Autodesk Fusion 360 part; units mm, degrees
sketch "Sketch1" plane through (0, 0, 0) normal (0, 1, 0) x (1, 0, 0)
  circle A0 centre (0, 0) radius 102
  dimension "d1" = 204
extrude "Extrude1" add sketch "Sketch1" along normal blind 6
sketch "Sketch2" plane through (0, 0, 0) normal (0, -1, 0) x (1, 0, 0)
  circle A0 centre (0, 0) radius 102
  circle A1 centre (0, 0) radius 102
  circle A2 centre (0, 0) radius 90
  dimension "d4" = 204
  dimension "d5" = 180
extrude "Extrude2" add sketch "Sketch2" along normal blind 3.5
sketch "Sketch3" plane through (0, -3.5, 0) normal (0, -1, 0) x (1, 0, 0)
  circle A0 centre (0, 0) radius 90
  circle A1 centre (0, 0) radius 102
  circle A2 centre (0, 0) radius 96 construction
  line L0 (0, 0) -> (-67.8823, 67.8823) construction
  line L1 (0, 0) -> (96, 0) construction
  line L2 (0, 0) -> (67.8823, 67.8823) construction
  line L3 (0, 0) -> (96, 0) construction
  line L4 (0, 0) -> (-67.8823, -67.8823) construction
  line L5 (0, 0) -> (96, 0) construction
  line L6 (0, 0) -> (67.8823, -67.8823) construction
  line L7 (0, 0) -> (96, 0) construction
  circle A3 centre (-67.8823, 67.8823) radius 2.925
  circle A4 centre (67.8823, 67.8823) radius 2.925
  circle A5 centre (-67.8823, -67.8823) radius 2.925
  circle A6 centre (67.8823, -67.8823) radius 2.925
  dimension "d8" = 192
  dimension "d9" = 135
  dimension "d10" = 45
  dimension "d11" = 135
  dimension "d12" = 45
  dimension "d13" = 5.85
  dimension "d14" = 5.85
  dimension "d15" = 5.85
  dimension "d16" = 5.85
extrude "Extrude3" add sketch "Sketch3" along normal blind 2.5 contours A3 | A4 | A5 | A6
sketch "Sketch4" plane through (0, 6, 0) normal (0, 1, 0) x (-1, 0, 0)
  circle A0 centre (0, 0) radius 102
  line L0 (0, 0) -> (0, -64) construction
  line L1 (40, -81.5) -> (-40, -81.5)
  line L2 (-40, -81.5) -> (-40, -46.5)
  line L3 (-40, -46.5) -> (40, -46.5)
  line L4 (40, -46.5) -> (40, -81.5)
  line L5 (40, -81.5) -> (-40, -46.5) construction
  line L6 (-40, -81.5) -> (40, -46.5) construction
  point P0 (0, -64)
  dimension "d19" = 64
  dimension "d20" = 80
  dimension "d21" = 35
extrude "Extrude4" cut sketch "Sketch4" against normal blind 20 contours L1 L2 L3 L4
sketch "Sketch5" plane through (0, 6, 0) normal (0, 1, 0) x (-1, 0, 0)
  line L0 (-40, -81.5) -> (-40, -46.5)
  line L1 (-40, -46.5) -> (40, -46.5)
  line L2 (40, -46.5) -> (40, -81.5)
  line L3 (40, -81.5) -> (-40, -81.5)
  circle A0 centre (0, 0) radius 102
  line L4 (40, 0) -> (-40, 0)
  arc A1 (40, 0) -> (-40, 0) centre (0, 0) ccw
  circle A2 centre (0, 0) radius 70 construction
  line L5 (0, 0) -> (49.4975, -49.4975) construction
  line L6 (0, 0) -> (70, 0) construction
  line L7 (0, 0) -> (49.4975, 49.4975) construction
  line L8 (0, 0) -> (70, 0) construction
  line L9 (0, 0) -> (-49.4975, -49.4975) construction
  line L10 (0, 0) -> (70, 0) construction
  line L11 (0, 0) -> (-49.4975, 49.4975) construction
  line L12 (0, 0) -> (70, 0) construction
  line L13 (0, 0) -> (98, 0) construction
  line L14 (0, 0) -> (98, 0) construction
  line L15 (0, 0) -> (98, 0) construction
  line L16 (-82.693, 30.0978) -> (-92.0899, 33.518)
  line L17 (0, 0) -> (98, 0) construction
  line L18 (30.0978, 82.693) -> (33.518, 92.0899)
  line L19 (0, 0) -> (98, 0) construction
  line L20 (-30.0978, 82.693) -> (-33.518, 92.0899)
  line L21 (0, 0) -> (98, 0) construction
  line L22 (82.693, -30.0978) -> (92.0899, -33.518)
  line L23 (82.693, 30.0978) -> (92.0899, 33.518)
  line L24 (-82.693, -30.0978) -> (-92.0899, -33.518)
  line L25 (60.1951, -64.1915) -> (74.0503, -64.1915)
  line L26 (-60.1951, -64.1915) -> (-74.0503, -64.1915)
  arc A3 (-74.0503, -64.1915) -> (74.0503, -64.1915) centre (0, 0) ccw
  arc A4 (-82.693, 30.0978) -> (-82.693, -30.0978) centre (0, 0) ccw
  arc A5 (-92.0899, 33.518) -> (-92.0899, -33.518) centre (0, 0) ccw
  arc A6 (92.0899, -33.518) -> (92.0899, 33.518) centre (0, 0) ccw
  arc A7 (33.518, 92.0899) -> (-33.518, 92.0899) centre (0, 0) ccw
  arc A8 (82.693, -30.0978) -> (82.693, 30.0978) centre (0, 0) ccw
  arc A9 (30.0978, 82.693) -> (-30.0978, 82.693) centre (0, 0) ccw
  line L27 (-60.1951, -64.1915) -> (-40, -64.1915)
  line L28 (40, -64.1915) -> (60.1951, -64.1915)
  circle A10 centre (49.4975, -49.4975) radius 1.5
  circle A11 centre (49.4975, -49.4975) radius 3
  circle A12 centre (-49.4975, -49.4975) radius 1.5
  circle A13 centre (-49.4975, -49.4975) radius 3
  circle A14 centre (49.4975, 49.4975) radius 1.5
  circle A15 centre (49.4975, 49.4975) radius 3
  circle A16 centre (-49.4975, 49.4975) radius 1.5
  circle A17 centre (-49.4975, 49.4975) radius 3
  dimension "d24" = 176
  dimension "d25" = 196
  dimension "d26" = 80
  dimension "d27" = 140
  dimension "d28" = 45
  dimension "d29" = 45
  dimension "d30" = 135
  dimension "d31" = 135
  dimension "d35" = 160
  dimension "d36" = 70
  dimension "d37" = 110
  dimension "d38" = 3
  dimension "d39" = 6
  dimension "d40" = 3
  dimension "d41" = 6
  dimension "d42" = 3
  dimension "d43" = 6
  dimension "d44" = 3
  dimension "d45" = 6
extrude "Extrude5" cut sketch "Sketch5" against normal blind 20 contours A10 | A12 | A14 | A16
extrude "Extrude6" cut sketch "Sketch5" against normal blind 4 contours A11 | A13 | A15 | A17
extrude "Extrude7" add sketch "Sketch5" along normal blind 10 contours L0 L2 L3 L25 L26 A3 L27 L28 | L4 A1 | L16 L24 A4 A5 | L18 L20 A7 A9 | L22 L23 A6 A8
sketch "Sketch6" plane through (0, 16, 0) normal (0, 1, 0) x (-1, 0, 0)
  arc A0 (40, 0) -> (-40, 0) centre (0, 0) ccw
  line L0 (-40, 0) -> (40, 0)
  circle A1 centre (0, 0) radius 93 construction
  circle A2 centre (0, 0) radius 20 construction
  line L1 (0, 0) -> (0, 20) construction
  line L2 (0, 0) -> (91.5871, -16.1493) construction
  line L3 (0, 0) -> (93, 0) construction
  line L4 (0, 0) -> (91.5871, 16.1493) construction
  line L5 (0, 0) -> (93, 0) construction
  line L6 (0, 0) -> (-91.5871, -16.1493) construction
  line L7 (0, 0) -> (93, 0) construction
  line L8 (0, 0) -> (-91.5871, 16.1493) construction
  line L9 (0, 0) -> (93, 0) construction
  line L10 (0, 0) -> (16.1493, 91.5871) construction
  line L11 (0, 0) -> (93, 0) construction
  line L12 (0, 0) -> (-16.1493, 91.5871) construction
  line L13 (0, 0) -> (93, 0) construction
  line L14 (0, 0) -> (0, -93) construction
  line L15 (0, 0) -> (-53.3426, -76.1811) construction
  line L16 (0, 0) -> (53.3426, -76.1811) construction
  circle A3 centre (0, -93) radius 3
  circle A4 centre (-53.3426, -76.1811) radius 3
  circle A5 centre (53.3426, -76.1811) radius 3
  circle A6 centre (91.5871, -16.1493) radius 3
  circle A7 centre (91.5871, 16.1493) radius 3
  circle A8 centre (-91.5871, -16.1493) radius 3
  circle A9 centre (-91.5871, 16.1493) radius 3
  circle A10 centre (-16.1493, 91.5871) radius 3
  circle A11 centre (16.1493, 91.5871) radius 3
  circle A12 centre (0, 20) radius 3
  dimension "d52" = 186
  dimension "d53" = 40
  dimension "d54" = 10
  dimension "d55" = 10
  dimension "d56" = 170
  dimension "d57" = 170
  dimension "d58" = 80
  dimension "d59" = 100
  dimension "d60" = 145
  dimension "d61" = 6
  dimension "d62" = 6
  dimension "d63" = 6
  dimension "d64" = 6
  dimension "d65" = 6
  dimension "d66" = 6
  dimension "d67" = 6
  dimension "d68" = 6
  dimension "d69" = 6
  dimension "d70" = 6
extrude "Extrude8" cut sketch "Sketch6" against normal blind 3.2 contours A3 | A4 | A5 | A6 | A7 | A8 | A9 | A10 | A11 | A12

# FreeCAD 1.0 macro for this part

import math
import FreeCAD as App
import Part
import Sketcher

V = App.Vector
Q = App.Units.Quantity

doc = App.newDocument("Part")
body = doc.addObject("PartDesign::Body", "Body")

# Sketch on XZ plane
sketch1 = body.newObject("Sketcher::SketchObject", "Sketch")
sketch1.AttachmentSupport = (doc.getObject("XZ_Plane"), [""])
sketch1.MapMode = "FlatFace"
sketch1.addGeometry(Part.Circle(V(0, 0, 0), V(0, 0, 1), 102), False)
sketch1.addConstraint(Sketcher.Constraint("Coincident", 0, 3, -1, 1))
sketch1.addConstraint(Sketcher.Constraint("Diameter", 0, 204.0))
pad1 = body.newObject("PartDesign::Pad", "Pad")
pad1.Profile = sketch1
pad1.Length = 6
pad1.Reversed = True

# Sketch on XZ plane
sketch2 = body.newObject("Sketcher::SketchObject", "Sketch001")
sketch2.AttachmentSupport = (doc.getObject("XZ_Plane"), [""])
sketch2.MapMode = "FlatFace"
sketch2.addGeometry(Part.Circle(V(0, 0, 0), V(0, 0, 1), 102), False)
sketch2.addGeometry(Part.Circle(V(0, 0, 0), V(0, 0, 1), 90), False)
sketch2.addConstraint(Sketcher.Constraint("Coincident", 0, 3, -1, 1))
sketch2.addConstraint(Sketcher.Constraint("Coincident", 1, 3, -1, 1))
sketch2.addConstraint(Sketcher.Constraint("Diameter", 0, 204.0))
sketch2.addConstraint(Sketcher.Constraint("Diameter", 1, 180.0))
pad2 = body.newObject("PartDesign::Pad", "Pad001")
pad2.Profile = sketch2
pad2.Length = 3.5

# Sketch on XZ plane
sketch3 = body.newObject("Sketcher::SketchObject", "Sketch002")
sketch3.AttachmentSupport = (doc.getObject("XZ_Plane"), [""])
sketch3.MapMode = "FlatFace"
sketch3.AttachmentOffset = App.Placement(V(0, 0, 3.5), App.Rotation())
sketch3.addGeometry(Part.Circle(V(-67.9, 67.9, 0), V(0, 0, 1), 2.9), False)
sketch3.addGeometry(Part.Circle(V(67.9, 67.9, 0), V(0, 0, 1), 2.9), False)
sketch3.addGeometry(Part.Circle(V(-67.9, -67.9, 0), V(0, 0, 1), 2.9), False)
sketch3.addGeometry(Part.Circle(V(67.9, -67.9, 0), V(0, 0, 1), 2.9), False)
sketch3.addConstraint(Sketcher.Constraint("Equal", 0, 1))
sketch3.addConstraint(Sketcher.Constraint("Equal", 1, 2))
sketch3.addConstraint(Sketcher.Constraint("Equal", 2, 3))
sketch3.addConstraint(Sketcher.Constraint("Symmetric", 1, 3, 2, 3, -1, 1))
sketch3.addConstraint(Sketcher.Constraint("Symmetric", 0, 3, 3, 3, -1, 1))
sketch3.addConstraint(Sketcher.Constraint("Symmetric", 0, 3, 1, 3, -2))
sketch3.addConstraint(Sketcher.Constraint("Diameter", 0, 5.85))
sketch3.addConstraint(Sketcher.Constraint("DistanceX", 0, 3, -1, 1, 67.8823))
sketch3.addConstraint(Sketcher.Constraint("DistanceY", -1, 1, 0, 3, 67.8823))
pad3 = body.newObject("PartDesign::Pad", "Pad002")
pad3.Profile = sketch3
pad3.Length = 2.5

# Sketch on XZ plane
sketch4 = body.newObject("Sketcher::SketchObject", "Sketch003")
sketch4.AttachmentSupport = (doc.getObject("XZ_Plane"), [""])
sketch4.MapMode = "FlatFace"
sketch4.AttachmentOffset = App.Placement(V(0, 0, -6), App.Rotation())
sketch4.addGeometry(Part.LineSegment(V(40, -82, 0), V(-40, -82, 0)), False)
sketch4.addGeometry(Part.LineSegment(V(-40, -82, 0), V(-40, -46, 0)), False)
sketch4.addGeometry(Part.LineSegment(V(-40, -46, 0), V(40, -46, 0)), False)
sketch4.addGeometry(Part.LineSegment(V(40, -46, 0), V(40, -82, 0)), False)
sketch4.addConstraint(Sketcher.Constraint("Coincident", 0, 2, 1, 1))
sketch4.addConstraint(Sketcher.Constraint("Coincident", 1, 2, 2, 1))
sketch4.addConstraint(Sketcher.Constraint("Coincident", 2, 2, 3, 1))
sketch4.addConstraint(Sketcher.Constraint("Coincident", 3, 2, 0, 1))
sketch4.addConstraint(Sketcher.Constraint("Horizontal", 0))
sketch4.addConstraint(Sketcher.Constraint("Vertical", 1))
sketch4.addConstraint(Sketcher.Constraint("Horizontal", 2))
sketch4.addConstraint(Sketcher.Constraint("Vertical", 3))
sketch4.addConstraint(Sketcher.Constraint("DistanceX", 0, 2, 0, 1, 80.0))
sketch4.addConstraint(Sketcher.Constraint("DistanceY", 1, 1, 1, 2, 35.0))
sketch4.addConstraint(Sketcher.Constraint("DistanceX", 0, 2, -1, 1, 40.0))
sketch4.addConstraint(Sketcher.Constraint("DistanceY", 0, 2, -1, 1, 81.5))
pocket1 = body.newObject("PartDesign::Pocket", "Pocket")
pocket1.Profile = sketch4
pocket1.Length = 20
pocket1.Reversed = True

# Sketch on XZ plane
sketch5 = body.newObject("Sketcher::SketchObject", "Sketch004")
sketch5.AttachmentSupport = (doc.getObject("XZ_Plane"), [""])
sketch5.MapMode = "FlatFace"
sketch5.AttachmentOffset = App.Placement(V(0, 0, -6), App.Rotation())
sketch5.addGeometry(Part.Circle(V(-49.5, -49.5, 0), V(0, 0, 1), 1.5), False)
sketch5.addGeometry(Part.Circle(V(49.5, -49.5, 0), V(0, 0, 1), 1.5), False)
sketch5.addGeometry(Part.Circle(V(-49.5, 49.5, 0), V(0, 0, 1), 1.5), False)
sketch5.addGeometry(Part.Circle(V(49.5, 49.5, 0), V(0, 0, 1), 1.5), False)
sketch5.addConstraint(Sketcher.Constraint("Equal", 0, 1))
sketch5.addConstraint(Sketcher.Constraint("Equal", 1, 2))
sketch5.addConstraint(Sketcher.Constraint("Equal", 2, 3))
sketch5.addConstraint(Sketcher.Constraint("Symmetric", 1, 3, 2, 3, -1, 1))
sketch5.addConstraint(Sketcher.Constraint("Symmetric", 0, 3, 3, 3, -1, 1))
sketch5.addConstraint(Sketcher.Constraint("Symmetric", 0, 3, 1, 3, -2))
sketch5.addConstraint(Sketcher.Constraint("Diameter", 0, 3.0))
sketch5.addConstraint(Sketcher.Constraint("DistanceX", 0, 3, 1, 3, 98.995))
sketch5.addConstraint(Sketcher.Constraint("DistanceY", 0, 3, 2, 3, 98.995))
pocket2 = body.newObject("PartDesign::Pocket", "Pocket001")
pocket2.Profile = sketch5
pocket2.Length = 20
pocket2.Reversed = True

# Sketch on XZ plane
sketch6 = body.newObject("Sketcher::SketchObject", "Sketch005")
sketch6.AttachmentSupport = (doc.getObject("XZ_Plane"), [""])
sketch6.MapMode = "FlatFace"
sketch6.AttachmentOffset = App.Placement(V(0, 0, -6), App.Rotation())
sketch6.addGeometry(Part.Circle(V(-49.5, -49.5, 0), V(0, 0, 1), 3), False)
sketch6.addGeometry(Part.Circle(V(-49.5, -49.5, 0), V(0, 0, 1), 1.5), False)
sketch6.addGeometry(Part.Circle(V(49.5, -49.5, 0), V(0, 0, 1), 3), False)
sketch6.addGeometry(Part.Circle(V(49.5, -49.5, 0), V(0, 0, 1), 1.5), False)
sketch6.addGeometry(Part.Circle(V(-49.5, 49.5, 0), V(0, 0, 1), 3), False)
sketch6.addGeometry(Part.Circle(V(-49.5, 49.5, 0), V(0, 0, 1), 1.5), False)
sketch6.addGeometry(Part.Circle(V(49.5, 49.5, 0), V(0, 0, 1), 3), False)
sketch6.addGeometry(Part.Circle(V(49.5, 49.5, 0), V(0, 0, 1), 1.5), False)
sketch6.addConstraint(Sketcher.Constraint("Coincident", 1, 3, 0, 3))
sketch6.addConstraint(Sketcher.Constraint("Coincident", 3, 3, 2, 3))
sketch6.addConstraint(Sketcher.Constraint("Coincident", 5, 3, 4, 3))
sketch6.addConstraint(Sketcher.Constraint("Coincident", 7, 3, 6, 3))
sketch6.addConstraint(Sketcher.Constraint("Equal", 0, 2))
sketch6.addConstraint(Sketcher.Constraint("Equal", 1, 3))
sketch6.addConstraint(Sketcher.Constraint("Equal", 2, 4))
sketch6.addConstraint(Sketcher.Constraint("Equal", 3, 5))
sketch6.addConstraint(Sketcher.Constraint("Equal", 4, 6))
sketch6.addConstraint(Sketcher.Constraint("Equal", 5, 7))
sketch6.addConstraint(Sketcher.Constraint("Symmetric", 2, 3, 4, 3, -1, 1))
sketch6.addConstraint(Sketcher.Constraint("Symmetric", 0, 3, 6, 3, -1, 1))
sketch6.addConstraint(Sketcher.Constraint("Symmetric", 0, 3, 2, 3, -2))
sketch6.addConstraint(Sketcher.Constraint("Diameter", 0, 6.0))
sketch6.addConstraint(Sketcher.Constraint("Diameter", 1, 3.0))
sketch6.addConstraint(Sketcher.Constraint("DistanceX", 0, 3, 2, 3, 98.995))
sketch6.addConstraint(Sketcher.Constraint("DistanceY", 0, 3, 4, 3, 98.995))
pocket3 = body.newObject("PartDesign::Pocket", "Pocket002")
pocket3.Profile = sketch6
pocket3.Length = 4
pocket3.Reversed = True

# Sketch on XZ plane
sketch7 = body.newObject("Sketcher::SketchObject", "Sketch006")
sketch7.AttachmentSupport = (doc.getObject("XZ_Plane"), [""])
sketch7.MapMode = "FlatFace"
sketch7.AttachmentOffset = App.Placement(V(0, 0, -6), App.Rotation())
sketch7.addGeometry(Part.LineSegment(V(-40, -82, 0), V(40, -82, 0)), False)
sketch7.addGeometry(Part.LineSegment(V(40, -82, 0), V(40, -64, 0)), False)
sketch7.addGeometry(Part.LineSegment(V(40, -64, 0), V(74, -64, 0)), False)
sketch7.addGeometry(Part.ArcOfCircle(Part.Circle(V(0, 0, 0), V(0, 0, 1), 98), math.radians(-139), math.radians(-41)), False)
sketch7.addGeometry(Part.LineSegment(V(-74, -64, 0), V(-40, -64, 0)), False)
sketch7.addGeometry(Part.LineSegment(V(-40, -64, 0), V(-40, -82, 0)), False)
sketch7.addGeometry(Part.LineSegment(V(40, 0, 0), V(-40, 0, 0)), False)
sketch7.addGeometry(Part.ArcOfCircle(Part.Circle(V(0, 0, 0), V(0, 0, 1), 40), math.radians(0), math.radians(180)), False)
sketch7.addGeometry(Part.ArcOfCircle(Part.Circle(V(0, 0, 0), V(0, 0, 1), 88), math.radians(-20), math.radians(20)), False)
sketch7.addGeometry(Part.LineSegment(V(83, 30, 0), V(92, 34, 0)), False)
sketch7.addGeometry(Part.ArcOfCircle(Part.Circle(V(0, 0, 0), V(0, 0, 1), 98), math.radians(-20), math.radians(20)), False)
sketch7.addGeometry(Part.LineSegment(V(92, -34, 0), V(83, -30, 0)), False)
sketch7.addGeometry(Part.ArcOfCircle(Part.Circle(V(0, 0, 0), V(0, 0, 1), 88), math.radians(70), math.radians(110)), False)
sketch7.addGeometry(Part.LineSegment(V(-30, 83, 0), V(-34, 92, 0)), False)
sketch7.addGeometry(Part.ArcOfCircle(Part.Circle(V(0, 0, 0), V(0, 0, 1), 98), math.radians(70), math.radians(110)), False)
sketch7.addGeometry(Part.LineSegment(V(34, 92, 0), V(30, 83, 0)), False)
sketch7.addGeometry(Part.ArcOfCircle(Part.Circle(V(0, 0, 0), V(0, 0, 1), 88), math.radians(160), math.radians(200)), False)
sketch7.addGeometry(Part.LineSegment(V(-83, -30, 0), V(-92, -34, 0)), False)
sketch7.addGeometry(Part.ArcOfCircle(Part.Circle(V(0, 0, 0), V(0, 0, 1), 98), math.radians(160), math.radians(200)), False)
sketch7.addGeometry(Part.LineSegment(V(-92, 34, 0), V(-83, 30, 0)), False)
sketch7.addConstraint(Sketcher.Constraint("Coincident", 0, 2, 1, 1))
sketch7.addConstraint(Sketcher.Constraint("Coincident", 1, 2, 2, 1))
sketch7.addConstraint(Sketcher.Constraint("Coincident", 2, 2, 3, 2))
sketch7.addConstraint(Sketcher.Constraint("Coincident", 3, 1, 4, 1))
sketch7.addConstraint(Sketcher.Constraint("Coincident", 4, 2, 5, 1))
sketch7.addConstraint(Sketcher.Constraint("Coincident", 5, 2, 0, 1))
sketch7.addConstraint(Sketcher.Constraint("Coincident", 6, 1, 7, 1))
sketch7.addConstraint(Sketcher.Constraint("Coincident", 7, 2, 6, 2))
sketch7.addConstraint(Sketcher.Constraint("Coincident", 8, 2, 9, 1))
sketch7.addConstraint(Sketcher.Constraint("Coincident", 9, 2, 10, 2))
sketch7.addConstraint(Sketcher.Constraint("Coincident", 10, 1, 11, 1))
sketch7.addConstraint(Sketcher.Constraint("Coincident", 11, 2, 8, 1))
sketch7.addConstraint(Sketcher.Constraint("Coincident", 12, 2, 13, 1))
sketch7.addConstraint(Sketcher.Constraint("Coincident", 13, 2, 14, 2))
sketch7.addConstraint(Sketcher.Constraint("Coincident", 14, 1, 15, 1))
sketch7.addConstraint(Sketcher.Constraint("Coincident", 15, 2, 12, 1))
sketch7.addConstraint(Sketcher.Constraint("Coincident", 16, 2, 17, 1))
sketch7.addConstraint(Sketcher.Constraint("Coincident", 17, 2, 18, 2))
sketch7.addConstraint(Sketcher.Constraint("Coincident", 18, 1, 19, 1))
sketch7.addConstraint(Sketcher.Constraint("Coincident", 19, 2, 16, 1))
sketch7.addConstraint(Sketcher.Constraint("Horizontal", 0))
sketch7.addConstraint(Sketcher.Constraint("Vertical", 1))
sketch7.addConstraint(Sketcher.Constraint("Horizontal", 2))
sketch7.addConstraint(Sketcher.Constraint("Horizontal", 4))
sketch7.addConstraint(Sketcher.Constraint("Vertical", 5))
sketch7.addConstraint(Sketcher.Constraint("Horizontal", 6))
sketch7.addConstraint(Sketcher.Constraint("Coincident", 3, 3, -1, 1))
sketch7.addConstraint(Sketcher.Constraint("Coincident", 7, 3, -1, 1))
sketch7.addConstraint(Sketcher.Constraint("Coincident", 8, 3, -1, 1))
sketch7.addConstraint(Sketcher.Constraint("Coincident", 10, 3, -1, 1))
sketch7.addConstraint(Sketcher.Constraint("Coincident", 12, 3, -1, 1))
sketch7.addConstraint(Sketcher.Constraint("Coincident", 14, 3, -1, 1))
sketch7.addConstraint(Sketcher.Constraint("Coincident", 16, 3, -1, 1))
sketch7.addConstraint(Sketcher.Constraint("Coincident", 18, 3, -1, 1))
sketch7.addConstraint(Sketcher.Constraint("Equal", 3, 10))
sketch7.addConstraint(Sketcher.Constraint("Equal", 8, 12))
sketch7.addConstraint(Sketcher.Constraint("Equal", 10, 14))
sketch7.addConstraint(Sketcher.Constraint("Equal", 12, 16))
sketch7.addConstraint(Sketcher.Constraint("Equal", 14, 18))
sketch7.addConstraint(Sketcher.Constraint("Symmetric", 1, 2, 4, 2, -2))
sketch7.addConstraint(Sketcher.Constraint("PointOnObject", 6, 1, -1))
sketch7.addConstraint(Sketcher.Constraint("Perpendicular", 9, 13))
sketch7.addConstraint(Sketcher.Constraint("Perpendicular", 11, 15))
sketch7.addConstraint(Sketcher.Constraint("Perpendicular", 13, 17))
sketch7.addConstraint(Sketcher.Constraint("Perpendicular", 15, 19))
sketch7.addConstraint(Sketcher.Constraint("Horizontal", 13, 2, 14, 1))
sketch7.addConstraint(Sketcher.Constraint("Horizontal", 12, 2, 15, 2))
sketch7.addConstraint(Sketcher.Constraint("Horizontal", 11, 2, 16, 2))
sketch7.addConstraint(Sketcher.Constraint("Horizontal", 9, 2, 18, 1))
sketch7.addConstraint(Sketcher.Constraint("Vertical", 1, 2, 6, 1))
sketch7.addConstraint(Sketcher.Constraint("Vertical", 9, 2, 10, 1))
sketch7.addConstraint(Sketcher.Constraint("Radius", 3, 98.0))
sketch7.addConstraint(Sketcher.Constraint("Radius", 7, 40.0))
sketch7.addConstraint(Sketcher.Constraint("Radius", 8, 88.0))
sketch7.addConstraint(Sketcher.Constraint("Angle", 11, Q("160 deg")))
sketch7.addConstraint(Sketcher.Constraint("DistanceY", 0, 2, -1, 1, 81.5))
sketch7.addConstraint(Sketcher.Constraint("DistanceX", -1, 1, 9, 2, 92.09))
sketch7.addConstraint(Sketcher.Constraint("DistanceY", -1, 1, 13, 2, 92.09))
sketch7.addConstraint(Sketcher.Constraint("DistanceX", 2, 1, 2, 2, 34.0503))
pad4 = body.newObject("PartDesign::Pad", "Pad003")
pad4.Profile = sketch7
pad4.Length = 10
pad4.Reversed = True

# Sketch on XZ plane
sketch8 = body.newObject("Sketcher::SketchObject", "Sketch007")
sketch8.AttachmentSupport = (doc.getObject("XZ_Plane"), [""])
sketch8.MapMode = "FlatFace"
sketch8.AttachmentOffset = App.Placement(V(0, 0, -16), App.Rotation())
sketch8.addGeometry(Part.Circle(V(0, -93, 0), V(0, 0, 1), 3), False)
sketch8.addGeometry(Part.Circle(V(53.3, -76.2, 0), V(0, 0, 1), 3), False)
sketch8.addGeometry(Part.Circle(V(-53.3, -76.2, 0), V(0, 0, 1), 3), False)
sketch8.addGeometry(Part.Circle(V(-91.6, -16.1, 0), V(0, 0, 1), 3), False)
sketch8.addGeometry(Part.Circle(V(-91.6, 16.1, 0), V(0, 0, 1), 3), False)
sketch8.addGeometry(Part.Circle(V(91.6, -16.1, 0), V(0, 0, 1), 3), False)
sketch8.addGeometry(Part.Circle(V(91.6, 16.1, 0), V(0, 0, 1), 3), False)
sketch8.addGeometry(Part.Circle(V(16.1, 91.6, 0), V(0, 0, 1), 3), False)
sketch8.addGeometry(Part.Circle(V(-16.1, 91.6, 0), V(0, 0, 1), 3), False)
sketch8.addGeometry(Part.Circle(V(0, 20, 0), V(0, 0, 1), 3), False)
sketch8.addConstraint(Sketcher.Constraint("Equal", 0, 1))
sketch8.addConstraint(Sketcher.Constraint("Equal", 1, 2))
sketch8.addConstraint(Sketcher.Constraint("Equal", 2, 3))
sketch8.addConstraint(Sketcher.Constraint("Equal", 3, 4))
sketch8.addConstraint(Sketcher.Constraint("Equal", 4, 5))
sketch8.addConstraint(Sketcher.Constraint("Equal", 5, 6))
sketch8.addConstraint(Sketcher.Constraint("Equal", 6, 7))
sketch8.addConstraint(Sketcher.Constraint("Equal", 7, 8))
sketch8.addConstraint(Sketcher.Constraint("Equal", 8, 9))
sketch8.addConstraint(Sketcher.Constraint("Symmetric", 4, 3, 5, 3, -1, 1))
sketch8.addConstraint(Sketcher.Constraint("Symmetric", 3, 3, 6, 3, -1, 1))
sketch8.addConstraint(Sketcher.Constraint("Symmetric", 1, 3, 2, 3, -2))
sketch8.addConstraint(Sketcher.Constraint("Symmetric", 3, 3, 5, 3, -2))
sketch8.addConstraint(Sketcher.Constraint("Symmetric", 7, 3, 8, 3, -2))
sketch8.addConstraint(Sketcher.Constraint("PointOnObject", 0, 3, -2))
sketch8.addConstraint(Sketcher.Constraint("PointOnObject", 9, 3, -2))
sketch8.addConstraint(Sketcher.Constraint("Diameter", 0, 6.0))
sketch8.addConstraint(Sketcher.Constraint("DistanceY", 0, 3, -1, 1, 93.0))
sketch8.addConstraint(Sketcher.Constraint("DistanceY", -1, 1, 9, 3, 20.0))
sketch8.addConstraint(Sketcher.Constraint("DistanceY", 1, 3, -1, 1, 76.181))
sketch8.addConstraint(Sketcher.Constraint("DistanceX", 3, 3, -1, 1, 91.587))
sketch8.addConstraint(Sketcher.Constraint("DistanceY", -1, 1, 7, 3, 91.587))
sketch8.addConstraint(Sketcher.Constraint("DistanceX", -1, 1, 1, 3, 53.3426))
sketch8.addConstraint(Sketcher.Constraint("DistanceY", 3, 3, -1, 1, 16.1493))
sketch8.addConstraint(Sketcher.Constraint("DistanceX", -1, 1, 7, 3, 16.1493))
pocket4 = body.newObject("PartDesign::Pocket", "Pocket003")
pocket4.Profile = sketch8
pocket4.Length = 3.2
pocket4.Reversed = True

doc.recompute()
